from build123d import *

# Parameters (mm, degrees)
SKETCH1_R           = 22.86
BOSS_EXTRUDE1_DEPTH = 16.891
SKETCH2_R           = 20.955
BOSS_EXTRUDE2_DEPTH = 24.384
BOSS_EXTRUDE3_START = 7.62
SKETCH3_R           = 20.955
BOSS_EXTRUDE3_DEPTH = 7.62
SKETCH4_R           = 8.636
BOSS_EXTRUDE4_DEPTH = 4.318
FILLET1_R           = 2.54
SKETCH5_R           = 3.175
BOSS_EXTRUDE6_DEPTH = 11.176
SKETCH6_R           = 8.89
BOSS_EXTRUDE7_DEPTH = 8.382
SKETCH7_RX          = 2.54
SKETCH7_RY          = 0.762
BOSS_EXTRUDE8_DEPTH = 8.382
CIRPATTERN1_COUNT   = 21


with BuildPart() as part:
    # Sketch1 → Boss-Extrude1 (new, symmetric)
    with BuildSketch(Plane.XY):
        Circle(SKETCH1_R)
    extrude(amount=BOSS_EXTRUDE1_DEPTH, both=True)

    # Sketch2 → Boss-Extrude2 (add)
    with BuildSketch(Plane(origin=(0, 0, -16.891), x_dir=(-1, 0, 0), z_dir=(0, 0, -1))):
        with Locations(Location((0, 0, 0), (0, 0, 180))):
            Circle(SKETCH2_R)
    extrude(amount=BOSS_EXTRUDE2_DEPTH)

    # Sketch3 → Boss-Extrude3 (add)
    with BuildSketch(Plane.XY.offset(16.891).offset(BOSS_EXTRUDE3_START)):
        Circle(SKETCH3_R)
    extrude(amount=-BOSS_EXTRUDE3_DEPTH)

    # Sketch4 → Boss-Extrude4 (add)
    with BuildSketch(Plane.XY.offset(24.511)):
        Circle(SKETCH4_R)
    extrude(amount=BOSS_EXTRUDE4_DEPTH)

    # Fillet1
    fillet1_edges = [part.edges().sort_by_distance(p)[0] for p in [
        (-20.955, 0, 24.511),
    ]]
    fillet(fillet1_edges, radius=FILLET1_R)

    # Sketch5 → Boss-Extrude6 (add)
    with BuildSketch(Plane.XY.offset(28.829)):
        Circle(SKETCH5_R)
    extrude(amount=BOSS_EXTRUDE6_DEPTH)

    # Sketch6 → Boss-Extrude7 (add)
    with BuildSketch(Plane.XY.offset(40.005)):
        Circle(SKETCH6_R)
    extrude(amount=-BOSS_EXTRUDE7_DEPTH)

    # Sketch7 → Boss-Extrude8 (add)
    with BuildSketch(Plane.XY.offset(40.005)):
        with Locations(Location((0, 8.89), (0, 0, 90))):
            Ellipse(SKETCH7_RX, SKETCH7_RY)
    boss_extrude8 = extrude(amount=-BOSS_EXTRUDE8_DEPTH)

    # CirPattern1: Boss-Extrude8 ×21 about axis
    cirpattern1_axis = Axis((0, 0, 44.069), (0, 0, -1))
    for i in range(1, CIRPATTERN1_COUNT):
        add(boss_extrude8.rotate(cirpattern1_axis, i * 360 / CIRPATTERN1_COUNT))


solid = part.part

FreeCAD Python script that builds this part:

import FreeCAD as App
import Part
import Sketcher
Q = App.Units.Quantity


def edges_at(feature, points):
    """Names of the edges that pass closest to the given points."""
    edges = feature.Shape.Edges
    near = lambda p: min(range(len(edges)), key=lambda i: edges[i].distToShape(Part.Vertex(*p))[0])
    return sorted({f"Edge{near(p) + 1}" for p in points})

doc = App.newDocument("Part")
params = doc.addObject("Spreadsheet::Sheet", "Params")
for row, (alias, value) in enumerate([
    ("sketch1_diameter", "1.8 in"),
    ("pad1_length", "1.33 in"),
    ("sketch2_diameter", "1.65 in"),
    ("pad2_length", "0.96 in"),
    ("sketch3_diameter", "1.65 in"),
    ("pad3_length", "0.3 in"),
    ("sketch4_diameter", "0.68 in"),
    ("pad4_length", "0.17 in"),
    ("fillet_radius", "0.1 in"),
    ("sketch5_diameter", "0.25 in"),
    ("pad5_length", "0.44 in"),
    ("sketch6_diameter", "0.7 in"),
    ("pad6_length", "0.33 in"),
    ("pad7_length", "0.33 in"),
], start=1):
    params.set(f"A{row}", alias)
    params.set(f"B{row}", "=" + value)
    params.setAlias(f"B{row}", alias)

body = doc.addObject("PartDesign::Body", "Body")

sketch1 = body.newObject("Sketcher::SketchObject", "Sketch")
sketch1.AttachmentSupport = (doc.getObject("XY_Plane"), [""])
sketch1.MapMode = "FlatFace"
sketch1.addGeometry(Part.Circle(App.Vector(0, 0, 0), App.Vector(0, 0, 1), 23), False)
sketch1.addConstraint(Sketcher.Constraint("Coincident", 0, 3, -1, 1))
sketch1.addConstraint(Sketcher.Constraint("Diameter", 0, Q("1.8 in")))
sketch1.setExpression("Constraints[1]", "Params.sketch1_diameter")
pad1 = body.newObject("PartDesign::Pad", "Pad")
pad1.Profile = sketch1
pad1.setExpression("Length", "Params.pad1_length")
pad1.Midplane = True

sketch2 = body.newObject("Sketcher::SketchObject", "Sketch001")
sketch2.AttachmentSupport = (doc.getObject("XY_Plane"), [""])
sketch2.MapMode = "FlatFace"
sketch2.AttachmentOffset = App.Placement(App.Vector(0, 0, -0.665 * 25.4), App.Rotation())
sketch2.addGeometry(Part.Circle(App.Vector(0, 0, 0), App.Vector(0, 0, 1), 21), False)
sketch2.addConstraint(Sketcher.Constraint("Coincident", 0, 3, -1, 1))
sketch2.addConstraint(Sketcher.Constraint("Diameter", 0, Q("1.65 in")))
sketch2.setExpression("Constraints[1]", "Params.sketch2_diameter")
pad2 = body.newObject("PartDesign::Pad", "Pad001")
pad2.Profile = sketch2
pad2.setExpression("Length", "Params.pad2_length")
pad2.Reversed = True

sketch3 = body.newObject("Sketcher::SketchObject", "Sketch002")
sketch3.AttachmentSupport = (doc.getObject("XY_Plane"), [""])
sketch3.MapMode = "FlatFace"
sketch3.AttachmentOffset = App.Placement(App.Vector(0, 0, 0.965 * 25.4), App.Rotation())
sketch3.addGeometry(Part.Circle(App.Vector(0, 0, 0), App.Vector(0, 0, 1), 21), False)
sketch3.addConstraint(Sketcher.Constraint("Coincident", 0, 3, -1, 1))
sketch3.addConstraint(Sketcher.Constraint("Diameter", 0, Q("1.65 in")))
sketch3.setExpression("Constraints[1]", "Params.sketch3_diameter")
pad3 = body.newObject("PartDesign::Pad", "Pad002")
pad3.Profile = sketch3
pad3.setExpression("Length", "Params.pad3_length")
pad3.Reversed = True

sketch4 = body.newObject("Sketcher::SketchObject", "Sketch003")
sketch4.AttachmentSupport = (doc.getObject("XY_Plane"), [""])
sketch4.MapMode = "FlatFace"
sketch4.AttachmentOffset = App.Placement(App.Vector(0, 0, 0.965 * 25.4), App.Rotation())
sketch4.addGeometry(Part.Circle(App.Vector(0, 0, 0), App.Vector(0, 0, 1), 9), False)
sketch4.addConstraint(Sketcher.Constraint("Coincident", 0, 3, -1, 1))
sketch4.addConstraint(Sketcher.Constraint("Diameter", 0, Q("0.68 in")))
sketch4.setExpression("Constraints[1]", "Params.sketch4_diameter")
pad4 = body.newObject("PartDesign::Pad", "Pad003")
pad4.Profile = sketch4
pad4.setExpression("Length", "Params.pad4_length")
doc.recompute()

fillet = body.newObject("PartDesign::Fillet", "Fillet")
fillet.Base = (pad4, edges_at(pad4, [(-20.955, 0, 24.511)]))
fillet.setExpression("Radius", "Params.fillet_radius")

sketch5 = body.newObject("Sketcher::SketchObject", "Sketch004")
sketch5.AttachmentSupport = (doc.getObject("XY_Plane"), [""])
sketch5.MapMode = "FlatFace"
sketch5.AttachmentOffset = App.Placement(App.Vector(0, 0, 1.135 * 25.4), App.Rotation())
sketch5.addGeometry(Part.Circle(App.Vector(0, 0, 0), App.Vector(0, 0, 1), 3.2), False)
sketch5.addConstraint(Sketcher.Constraint("Coincident", 0, 3, -1, 1))
sketch5.addConstraint(Sketcher.Constraint("Diameter", 0, Q("0.25 in")))
sketch5.setExpression("Constraints[1]", "Params.sketch5_diameter")
pad5 = body.newObject("PartDesign::Pad", "Pad004")
pad5.Profile = sketch5
pad5.setExpression("Length", "Params.pad5_length")

sketch6 = body.newObject("Sketcher::SketchObject", "Sketch005")
sketch6.AttachmentSupport = (doc.getObject("XY_Plane"), [""])
sketch6.MapMode = "FlatFace"
sketch6.AttachmentOffset = App.Placement(App.Vector(0, 0, 1.575 * 25.4), App.Rotation())
sketch6.addGeometry(Part.Circle(App.Vector(0, 0, 0), App.Vector(0, 0, 1), 9), False)
sketch6.addConstraint(Sketcher.Constraint("Coincident", 0, 3, -1, 1))
sketch6.addConstraint(Sketcher.Constraint("Diameter", 0, Q("0.7 in")))
sketch6.setExpression("Constraints[1]", "Params.sketch6_diameter")
pad6 = body.newObject("PartDesign::Pad", "Pad005")
pad6.Profile = sketch6
pad6.setExpression("Length", "Params.pad6_length")
pad6.Reversed = True

sketch7 = body.newObject("Sketcher::SketchObject", "Sketch006")
sketch7.AttachmentSupport = (doc.getObject("XY_Plane"), [""])
sketch7.MapMode = "FlatFace"
sketch7.AttachmentOffset = App.Placement(App.Vector(0, 0, 1.575 * 25.4), App.Rotation())
sketch7.addGeometry(Part.Ellipse(App.Vector(0, 11.43, 0), App.Vector(-0.762, 8.89, 0), App.Vector(0, 8.89, 0)), False)
sketch7.addConstraint(Sketcher.Constraint("Block", 0))
pad7 = body.newObject("PartDesign::Pad", "Pad006")
pad7.Profile = sketch7
pad7.setExpression("Length", "Params.pad7_length")
pad7.Reversed = True
doc.recompute()

polarpattern = body.newObject("PartDesign::PolarPattern", "PolarPattern")
polarpattern.Originals = [pad7]
polarpattern.Axis = (doc.getObject("Z_Axis"), [""])
polarpattern.Angle = 360
polarpattern.Occurrences = 21
body.Tip = polarpattern

doc.recompute()
